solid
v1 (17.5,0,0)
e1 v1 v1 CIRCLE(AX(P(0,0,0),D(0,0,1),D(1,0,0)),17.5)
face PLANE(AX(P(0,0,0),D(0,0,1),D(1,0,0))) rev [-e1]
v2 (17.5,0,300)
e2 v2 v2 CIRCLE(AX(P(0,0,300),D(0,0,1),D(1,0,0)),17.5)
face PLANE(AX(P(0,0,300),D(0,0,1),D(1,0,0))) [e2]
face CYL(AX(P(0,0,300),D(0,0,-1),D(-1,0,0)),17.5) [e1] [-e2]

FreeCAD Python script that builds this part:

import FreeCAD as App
import Part
import Sketcher
Q = App.Units.Quantity

doc = App.newDocument("Part")
params = doc.addObject("Spreadsheet::Sheet", "Params")
for row, (alias, value) in enumerate([
    ("sketch1_diameter", "35 mm"),
    ("pad1_length", "300 mm"),
], start=1):
    params.set(f"A{row}", alias)
    params.set(f"B{row}", "=" + value)
    params.setAlias(f"B{row}", alias)

body = doc.addObject("PartDesign::Body", "Body")

# Sketch on XY plane
sketch1 = body.newObject("Sketcher::SketchObject", "Sketch")
sketch1.AttachmentSupport = (doc.getObject("XY_Plane"), [""])
sketch1.MapMode = "FlatFace"
sketch1.addGeometry(Part.Circle(App.Vector(0, 0, 0), App.Vector(0, 0, 1), 18), False)
sketch1.addConstraint(Sketcher.Constraint("Coincident", 0, 3, -1, 1))
sketch1.addConstraint(Sketcher.Constraint("Diameter", 0, Q("35 mm")))
sketch1.setExpression("Constraints[1]", "Params.sketch1_diameter")
pad1 = body.newObject("PartDesign::Pad", "Pad")
pad1.Profile = sketch1
pad1.setExpression("Length", "Params.pad1_length")

doc.recompute()
